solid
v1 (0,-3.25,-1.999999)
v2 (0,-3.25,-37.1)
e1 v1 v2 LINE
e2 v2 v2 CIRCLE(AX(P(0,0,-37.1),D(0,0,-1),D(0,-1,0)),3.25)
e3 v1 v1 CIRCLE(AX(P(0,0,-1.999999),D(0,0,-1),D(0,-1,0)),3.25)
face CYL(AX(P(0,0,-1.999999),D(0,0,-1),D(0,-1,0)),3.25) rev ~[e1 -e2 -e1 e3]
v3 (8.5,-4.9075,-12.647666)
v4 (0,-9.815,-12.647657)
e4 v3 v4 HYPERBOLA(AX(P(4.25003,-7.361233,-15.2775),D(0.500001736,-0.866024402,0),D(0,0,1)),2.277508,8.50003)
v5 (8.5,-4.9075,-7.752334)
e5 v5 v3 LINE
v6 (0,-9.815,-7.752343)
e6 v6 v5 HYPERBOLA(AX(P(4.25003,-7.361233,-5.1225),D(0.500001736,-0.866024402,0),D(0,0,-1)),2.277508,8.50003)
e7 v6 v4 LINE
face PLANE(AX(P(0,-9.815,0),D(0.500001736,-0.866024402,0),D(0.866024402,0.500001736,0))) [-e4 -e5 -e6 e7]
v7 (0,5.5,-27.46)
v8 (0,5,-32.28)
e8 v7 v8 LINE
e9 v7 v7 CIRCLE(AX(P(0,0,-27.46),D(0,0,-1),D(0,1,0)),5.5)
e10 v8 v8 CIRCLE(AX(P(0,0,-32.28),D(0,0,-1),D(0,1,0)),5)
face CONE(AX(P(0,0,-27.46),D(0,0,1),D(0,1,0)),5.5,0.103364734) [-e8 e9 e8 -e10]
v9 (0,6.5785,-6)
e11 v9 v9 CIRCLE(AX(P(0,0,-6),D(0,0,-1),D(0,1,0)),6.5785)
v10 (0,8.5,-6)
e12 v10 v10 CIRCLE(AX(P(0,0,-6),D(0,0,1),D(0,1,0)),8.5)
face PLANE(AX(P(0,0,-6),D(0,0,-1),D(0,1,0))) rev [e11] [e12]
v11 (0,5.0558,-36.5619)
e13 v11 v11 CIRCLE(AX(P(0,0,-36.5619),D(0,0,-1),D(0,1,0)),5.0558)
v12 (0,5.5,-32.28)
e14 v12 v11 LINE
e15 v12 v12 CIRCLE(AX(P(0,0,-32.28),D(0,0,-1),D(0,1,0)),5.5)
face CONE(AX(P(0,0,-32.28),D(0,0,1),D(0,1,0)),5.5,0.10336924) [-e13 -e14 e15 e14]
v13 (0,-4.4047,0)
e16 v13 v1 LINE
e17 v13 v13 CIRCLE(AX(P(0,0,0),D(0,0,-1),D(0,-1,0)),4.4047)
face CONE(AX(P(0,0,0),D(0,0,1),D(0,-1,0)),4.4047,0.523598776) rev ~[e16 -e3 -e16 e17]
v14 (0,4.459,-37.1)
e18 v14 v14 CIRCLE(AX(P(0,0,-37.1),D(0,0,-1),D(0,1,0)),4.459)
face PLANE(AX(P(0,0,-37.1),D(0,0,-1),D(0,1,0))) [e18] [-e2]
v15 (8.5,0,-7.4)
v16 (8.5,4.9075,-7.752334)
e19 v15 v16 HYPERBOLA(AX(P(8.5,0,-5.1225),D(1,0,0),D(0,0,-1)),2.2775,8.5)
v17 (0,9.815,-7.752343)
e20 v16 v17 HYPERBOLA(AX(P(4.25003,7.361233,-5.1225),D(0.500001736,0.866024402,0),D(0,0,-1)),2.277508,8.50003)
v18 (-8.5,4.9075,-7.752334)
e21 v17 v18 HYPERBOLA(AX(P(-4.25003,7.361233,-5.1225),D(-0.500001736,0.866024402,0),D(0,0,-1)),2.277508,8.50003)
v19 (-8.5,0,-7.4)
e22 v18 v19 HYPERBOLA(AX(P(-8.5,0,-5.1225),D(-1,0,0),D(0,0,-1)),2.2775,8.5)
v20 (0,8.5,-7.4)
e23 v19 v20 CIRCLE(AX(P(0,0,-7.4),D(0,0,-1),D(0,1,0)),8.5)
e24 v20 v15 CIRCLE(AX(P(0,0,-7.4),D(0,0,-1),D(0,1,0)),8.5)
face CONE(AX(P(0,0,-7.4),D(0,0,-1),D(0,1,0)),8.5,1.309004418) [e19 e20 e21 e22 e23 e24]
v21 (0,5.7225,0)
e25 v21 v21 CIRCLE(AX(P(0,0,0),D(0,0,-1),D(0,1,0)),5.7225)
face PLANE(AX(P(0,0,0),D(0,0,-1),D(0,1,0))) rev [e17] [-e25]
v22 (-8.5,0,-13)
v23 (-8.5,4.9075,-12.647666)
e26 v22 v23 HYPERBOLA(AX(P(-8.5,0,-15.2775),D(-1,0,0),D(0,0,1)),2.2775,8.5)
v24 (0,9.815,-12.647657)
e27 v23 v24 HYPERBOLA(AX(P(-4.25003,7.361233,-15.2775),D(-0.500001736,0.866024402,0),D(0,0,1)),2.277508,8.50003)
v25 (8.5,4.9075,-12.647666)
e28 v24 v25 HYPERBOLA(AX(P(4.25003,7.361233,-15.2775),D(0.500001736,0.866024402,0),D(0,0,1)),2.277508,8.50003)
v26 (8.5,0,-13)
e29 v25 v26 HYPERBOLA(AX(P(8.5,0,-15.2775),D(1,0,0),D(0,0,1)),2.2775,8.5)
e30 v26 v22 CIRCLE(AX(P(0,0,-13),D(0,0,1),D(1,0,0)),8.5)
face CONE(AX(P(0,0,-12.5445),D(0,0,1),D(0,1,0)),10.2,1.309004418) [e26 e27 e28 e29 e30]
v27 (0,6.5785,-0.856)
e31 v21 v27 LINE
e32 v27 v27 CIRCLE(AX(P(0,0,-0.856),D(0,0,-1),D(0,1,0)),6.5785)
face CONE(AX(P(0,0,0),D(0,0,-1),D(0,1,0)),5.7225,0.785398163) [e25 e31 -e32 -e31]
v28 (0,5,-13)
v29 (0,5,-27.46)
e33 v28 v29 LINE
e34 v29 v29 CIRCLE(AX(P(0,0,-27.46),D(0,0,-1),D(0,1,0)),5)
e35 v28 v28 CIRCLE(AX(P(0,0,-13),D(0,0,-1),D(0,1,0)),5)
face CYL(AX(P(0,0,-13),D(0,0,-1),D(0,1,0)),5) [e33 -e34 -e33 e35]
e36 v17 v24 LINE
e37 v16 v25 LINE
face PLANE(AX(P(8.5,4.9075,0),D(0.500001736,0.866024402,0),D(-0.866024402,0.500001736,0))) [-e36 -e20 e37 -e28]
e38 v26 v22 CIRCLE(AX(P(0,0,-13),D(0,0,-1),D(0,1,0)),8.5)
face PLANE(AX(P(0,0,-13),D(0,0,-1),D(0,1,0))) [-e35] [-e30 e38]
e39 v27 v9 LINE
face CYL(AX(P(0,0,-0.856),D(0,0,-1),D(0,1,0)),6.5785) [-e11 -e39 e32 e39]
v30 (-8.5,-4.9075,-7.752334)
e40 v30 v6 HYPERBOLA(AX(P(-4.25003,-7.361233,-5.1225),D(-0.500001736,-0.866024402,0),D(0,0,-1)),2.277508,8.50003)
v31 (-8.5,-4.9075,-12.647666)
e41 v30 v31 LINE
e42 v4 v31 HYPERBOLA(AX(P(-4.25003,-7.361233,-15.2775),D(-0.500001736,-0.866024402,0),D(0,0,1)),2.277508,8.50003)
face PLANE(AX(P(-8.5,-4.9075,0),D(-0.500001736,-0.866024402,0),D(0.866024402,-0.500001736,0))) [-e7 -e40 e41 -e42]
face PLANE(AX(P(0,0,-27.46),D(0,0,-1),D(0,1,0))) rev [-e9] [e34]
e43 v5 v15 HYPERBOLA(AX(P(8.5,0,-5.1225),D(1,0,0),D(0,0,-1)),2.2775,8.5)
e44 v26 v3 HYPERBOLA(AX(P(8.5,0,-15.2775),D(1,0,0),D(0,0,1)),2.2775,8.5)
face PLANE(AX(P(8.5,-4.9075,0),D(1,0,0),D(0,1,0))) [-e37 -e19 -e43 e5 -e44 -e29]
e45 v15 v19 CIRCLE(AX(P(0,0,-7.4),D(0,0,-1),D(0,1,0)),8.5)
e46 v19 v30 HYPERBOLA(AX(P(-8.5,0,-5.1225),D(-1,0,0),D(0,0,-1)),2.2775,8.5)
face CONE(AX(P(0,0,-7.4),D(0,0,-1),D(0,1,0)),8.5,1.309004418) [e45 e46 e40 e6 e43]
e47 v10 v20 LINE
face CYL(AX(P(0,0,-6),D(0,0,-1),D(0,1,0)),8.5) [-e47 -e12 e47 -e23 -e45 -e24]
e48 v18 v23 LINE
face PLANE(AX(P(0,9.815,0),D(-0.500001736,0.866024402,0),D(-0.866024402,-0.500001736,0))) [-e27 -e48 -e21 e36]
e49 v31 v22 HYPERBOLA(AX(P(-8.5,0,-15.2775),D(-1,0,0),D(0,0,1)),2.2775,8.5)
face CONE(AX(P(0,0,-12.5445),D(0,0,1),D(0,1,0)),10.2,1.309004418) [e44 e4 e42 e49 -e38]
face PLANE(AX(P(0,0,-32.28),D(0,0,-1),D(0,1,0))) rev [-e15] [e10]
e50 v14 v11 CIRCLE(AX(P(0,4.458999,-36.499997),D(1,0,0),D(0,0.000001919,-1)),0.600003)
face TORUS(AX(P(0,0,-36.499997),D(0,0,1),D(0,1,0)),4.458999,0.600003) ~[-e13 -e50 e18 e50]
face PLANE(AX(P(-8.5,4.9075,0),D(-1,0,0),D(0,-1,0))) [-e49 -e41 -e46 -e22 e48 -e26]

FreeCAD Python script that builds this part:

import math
import FreeCAD as App
import Part
import Sketcher

V = App.Vector
Q = App.Units.Quantity


def add_polygon(sketch, points):
    """Adds a closed chain of lines whose ends are joined by coincident constraints."""
    first, n = sketch.GeometryCount, len(points)
    for a, b in zip(points, points[1:] + points[:1]):
        sketch.addGeometry(Part.LineSegment(App.Vector(*a, 0), App.Vector(*b, 0)), False)
    for i in range(n):
        sketch.addConstraint(Sketcher.Constraint("Coincident", first + i, 2, first + (i + 1) % n, 1))

doc = App.newDocument("Part")
body = doc.addObject("PartDesign::Body", "Body")

sketch1 = body.newObject("Sketcher::SketchObject", "Sketch")
sketch1.AttachmentSupport = (doc.getObject("YZ_Plane"), [""])
sketch1.MapMode = "FlatFace"
sketch1.addGeometry([
    Part.LineSegment(V(0, 0, 0), V(0, -37.1, 0)),
    Part.LineSegment(V(0, -37.1, 0), V(4.459, -37.1, 0)),
    Part.ArcOfCircle(Part.Circle(V(4.459, -36.5, 0), V(0, 0, 1), 0.6), math.radians(-90), math.radians(-5.921535)),
    Part.LineSegment(V(5.0558, -36.5619, 0), V(5.5, -32.28, 0)),
    Part.LineSegment(V(5.5, -32.28, 0), V(5, -32.28, 0)),
    Part.LineSegment(V(5, -32.28, 0), V(5.5, -27.46, 0)),
    Part.LineSegment(V(5.5, -27.46, 0), V(5, -27.46, 0)),
    Part.LineSegment(V(5, -27.46, 0), V(5, -13, 0)),
    Part.LineSegment(V(5, -13, 0), V(8.5, -13, 0)),
    Part.LineSegment(V(8.5, -13, 0), V(10.2, -12.5445, 0)),
    Part.LineSegment(V(10.2, -12.5445, 0), V(10.2, -7.8555, 0)),
    Part.LineSegment(V(10.2, -7.8555, 0), V(8.5, -7.4, 0)),
    Part.LineSegment(V(8.5, -7.4, 0), V(8.5, -6, 0)),
    Part.LineSegment(V(8.5, -6, 0), V(6.5785, -6, 0)),
    Part.LineSegment(V(6.5785, -6, 0), V(6.5785, -0.856, 0)),
    Part.LineSegment(V(6.5785, -0.856, 0), V(5.7225, 0, 0)),
    Part.LineSegment(V(5.7225, 0, 0), V(0, 0, 0)),
], False)
sketch1.addConstraint([
    Sketcher.Constraint("Coincident", 0, 2, 1, 1),
    Sketcher.Constraint("Tangent", 1, 2, 2, 1),
    Sketcher.Constraint("Tangent", 2, 2, 3, 1),
    Sketcher.Constraint("Coincident", 3, 2, 4, 1),
    Sketcher.Constraint("Coincident", 4, 2, 5, 1),
    Sketcher.Constraint("Coincident", 5, 2, 6, 1),
    Sketcher.Constraint("Coincident", 6, 2, 7, 1),
    Sketcher.Constraint("Coincident", 7, 2, 8, 1),
    Sketcher.Constraint("Coincident", 8, 2, 9, 1),
    Sketcher.Constraint("Coincident", 9, 2, 10, 1),
    Sketcher.Constraint("Coincident", 10, 2, 11, 1),
    Sketcher.Constraint("Coincident", 11, 2, 12, 1),
    Sketcher.Constraint("Coincident", 12, 2, 13, 1),
    Sketcher.Constraint("Coincident", 13, 2, 14, 1),
    Sketcher.Constraint("Coincident", 14, 2, 15, 1),
    Sketcher.Constraint("Coincident", 15, 2, 16, 1),
    Sketcher.Constraint("Coincident", 16, 2, 0, 1),
    Sketcher.Constraint("Vertical", 0),
    Sketcher.Constraint("Horizontal", 1),
    Sketcher.Constraint("Horizontal", 4),
    Sketcher.Constraint("Horizontal", 6),
    Sketcher.Constraint("Vertical", 7),
    Sketcher.Constraint("Horizontal", 8),
    Sketcher.Constraint("Vertical", 10),
    Sketcher.Constraint("Vertical", 12),
    Sketcher.Constraint("Horizontal", 13),
    Sketcher.Constraint("Vertical", 14),
    Sketcher.Constraint("Horizontal", 16),
    Sketcher.Constraint("Coincident", 16, 2, -1, 1),
    Sketcher.Constraint("Parallel", 3, 5),
    Sketcher.Constraint("Vertical", 3, 2, 5, 2),
    Sketcher.Constraint("Vertical", 4, 2, 6, 2),
    Sketcher.Constraint("Vertical", 8, 2, 11, 2),
    Sketcher.Constraint("Equal", 9, 11),
    Sketcher.Constraint("Radius", 2, 0.6),
    Sketcher.Constraint("Angle", 9, Q("14.9996 deg")),
    Sketcher.Constraint("Angle", 15, Q("135 deg")),
    Sketcher.Constraint("DistanceX", 4, 2, 4, 1, 0.5),
    Sketcher.Constraint("DistanceX", 8, 1, 8, 2, 3.5),
    Sketcher.Constraint("DistanceY", 0, 2, 0, 1, 37.1),
    Sketcher.Constraint("DistanceY", 12, 1, 12, 2, 1.4),
    Sketcher.Constraint("DistanceX", -1, 1, 4, 2, 5.0),
    Sketcher.Constraint("DistanceY", 7, 2, -1, 1, 13.0),
    Sketcher.Constraint("DistanceY", 12, 2, -1, 1, 6.0),
    Sketcher.Constraint("DistanceY", 7, 1, 7, 2, 14.46),
    Sketcher.Constraint("DistanceX", -1, 1, 9, 2, 10.2),
    Sketcher.Constraint("DistanceX", 1, 1, 1, 2, 4.459),
    Sketcher.Constraint("DistanceY", 14, 1, 14, 2, 5.144),
    Sketcher.Constraint("DistanceX", 13, 2, 13, 1, 1.9215),
])
revolution = body.newObject("PartDesign::Revolution", "Revolution")
revolution.Profile = sketch1
revolution.ReferenceAxis = (sketch1, ["V_Axis"])
revolution.Angle = 360

sketch2 = body.newObject("Sketcher::SketchObject", "Sketch001")
sketch2.AttachmentSupport = (doc.getObject("XY_Plane"), [""])
sketch2.MapMode = "FlatFace"
sketch2.addGeometry(Part.Circle(V(0, 0, 0), V(0, 0, 1), 3.25), False)
sketch2.addConstraint([
    Sketcher.Constraint("Coincident", 0, 3, -1, 1),
    Sketcher.Constraint("Diameter", 0, 6.5),
])
doc.recompute()
hole = body.newObject("PartDesign::Hole", "Hole")
hole.Profile = sketch2
hole.ThreadType = "None"
hole.Diameter = 6.5
hole.DepthType = "Dimension"
hole.Depth = 37.1
hole.DrillPoint = "Flat"
hole.HoleCutType = "Countersink"
hole.HoleCutDiameter = 8.8094
hole.HoleCutCountersinkAngle = 60

sketch3 = body.newObject("Sketcher::SketchObject", "Sketch002")
sketch3.AttachmentSupport = (doc.getObject("XY_Plane"), [""])
sketch3.MapMode = "FlatFace"
add_polygon(sketch3, [(-17, 17), (-17, -17), (17, -17), (17, 17)])
add_polygon(sketch3, [(0, -9.815), (-8.5, -4.9075), (-8.5, 4.9075), (0, 9.815), (8.5, 4.9075), (8.5, -4.9075)])
sketch3.addConstraint([
    Sketcher.Constraint("Vertical", 0),
    Sketcher.Constraint("Horizontal", 1),
    Sketcher.Constraint("Vertical", 2),
    Sketcher.Constraint("Horizontal", 3),
    Sketcher.Constraint("Vertical", 5),
    Sketcher.Constraint("Vertical", 8),
    Sketcher.Constraint("Symmetric", 0, 2, 2, 2, -1, 1),
    Sketcher.Constraint("Symmetric", 4, 2, 7, 2, -1, 1),
    Sketcher.Constraint("Symmetric", 6, 2, 9, 2, -1, 1),
    Sketcher.Constraint("PointOnObject", 6, 2, -2),
    Sketcher.Constraint("Parallel", 6, 9),
    Sketcher.Constraint("Horizontal", 5, 2, 7, 2),
    Sketcher.Constraint("Equal", 3, 0),
    Sketcher.Constraint("DistanceX", 1, 1, 1, 2, 34.0),
    Sketcher.Constraint("Angle", 4, Q("150 deg")),
    Sketcher.Constraint("DistanceX", 5, 2, 7, 2, 17.0),
    Sketcher.Constraint("DistanceY", 5, 1, 5, 2, 9.815),
])
pocket1 = body.newObject("PartDesign::Pocket", "Pocket")
pocket1.Profile = sketch3
pocket1.Length = 13

doc.recompute()
